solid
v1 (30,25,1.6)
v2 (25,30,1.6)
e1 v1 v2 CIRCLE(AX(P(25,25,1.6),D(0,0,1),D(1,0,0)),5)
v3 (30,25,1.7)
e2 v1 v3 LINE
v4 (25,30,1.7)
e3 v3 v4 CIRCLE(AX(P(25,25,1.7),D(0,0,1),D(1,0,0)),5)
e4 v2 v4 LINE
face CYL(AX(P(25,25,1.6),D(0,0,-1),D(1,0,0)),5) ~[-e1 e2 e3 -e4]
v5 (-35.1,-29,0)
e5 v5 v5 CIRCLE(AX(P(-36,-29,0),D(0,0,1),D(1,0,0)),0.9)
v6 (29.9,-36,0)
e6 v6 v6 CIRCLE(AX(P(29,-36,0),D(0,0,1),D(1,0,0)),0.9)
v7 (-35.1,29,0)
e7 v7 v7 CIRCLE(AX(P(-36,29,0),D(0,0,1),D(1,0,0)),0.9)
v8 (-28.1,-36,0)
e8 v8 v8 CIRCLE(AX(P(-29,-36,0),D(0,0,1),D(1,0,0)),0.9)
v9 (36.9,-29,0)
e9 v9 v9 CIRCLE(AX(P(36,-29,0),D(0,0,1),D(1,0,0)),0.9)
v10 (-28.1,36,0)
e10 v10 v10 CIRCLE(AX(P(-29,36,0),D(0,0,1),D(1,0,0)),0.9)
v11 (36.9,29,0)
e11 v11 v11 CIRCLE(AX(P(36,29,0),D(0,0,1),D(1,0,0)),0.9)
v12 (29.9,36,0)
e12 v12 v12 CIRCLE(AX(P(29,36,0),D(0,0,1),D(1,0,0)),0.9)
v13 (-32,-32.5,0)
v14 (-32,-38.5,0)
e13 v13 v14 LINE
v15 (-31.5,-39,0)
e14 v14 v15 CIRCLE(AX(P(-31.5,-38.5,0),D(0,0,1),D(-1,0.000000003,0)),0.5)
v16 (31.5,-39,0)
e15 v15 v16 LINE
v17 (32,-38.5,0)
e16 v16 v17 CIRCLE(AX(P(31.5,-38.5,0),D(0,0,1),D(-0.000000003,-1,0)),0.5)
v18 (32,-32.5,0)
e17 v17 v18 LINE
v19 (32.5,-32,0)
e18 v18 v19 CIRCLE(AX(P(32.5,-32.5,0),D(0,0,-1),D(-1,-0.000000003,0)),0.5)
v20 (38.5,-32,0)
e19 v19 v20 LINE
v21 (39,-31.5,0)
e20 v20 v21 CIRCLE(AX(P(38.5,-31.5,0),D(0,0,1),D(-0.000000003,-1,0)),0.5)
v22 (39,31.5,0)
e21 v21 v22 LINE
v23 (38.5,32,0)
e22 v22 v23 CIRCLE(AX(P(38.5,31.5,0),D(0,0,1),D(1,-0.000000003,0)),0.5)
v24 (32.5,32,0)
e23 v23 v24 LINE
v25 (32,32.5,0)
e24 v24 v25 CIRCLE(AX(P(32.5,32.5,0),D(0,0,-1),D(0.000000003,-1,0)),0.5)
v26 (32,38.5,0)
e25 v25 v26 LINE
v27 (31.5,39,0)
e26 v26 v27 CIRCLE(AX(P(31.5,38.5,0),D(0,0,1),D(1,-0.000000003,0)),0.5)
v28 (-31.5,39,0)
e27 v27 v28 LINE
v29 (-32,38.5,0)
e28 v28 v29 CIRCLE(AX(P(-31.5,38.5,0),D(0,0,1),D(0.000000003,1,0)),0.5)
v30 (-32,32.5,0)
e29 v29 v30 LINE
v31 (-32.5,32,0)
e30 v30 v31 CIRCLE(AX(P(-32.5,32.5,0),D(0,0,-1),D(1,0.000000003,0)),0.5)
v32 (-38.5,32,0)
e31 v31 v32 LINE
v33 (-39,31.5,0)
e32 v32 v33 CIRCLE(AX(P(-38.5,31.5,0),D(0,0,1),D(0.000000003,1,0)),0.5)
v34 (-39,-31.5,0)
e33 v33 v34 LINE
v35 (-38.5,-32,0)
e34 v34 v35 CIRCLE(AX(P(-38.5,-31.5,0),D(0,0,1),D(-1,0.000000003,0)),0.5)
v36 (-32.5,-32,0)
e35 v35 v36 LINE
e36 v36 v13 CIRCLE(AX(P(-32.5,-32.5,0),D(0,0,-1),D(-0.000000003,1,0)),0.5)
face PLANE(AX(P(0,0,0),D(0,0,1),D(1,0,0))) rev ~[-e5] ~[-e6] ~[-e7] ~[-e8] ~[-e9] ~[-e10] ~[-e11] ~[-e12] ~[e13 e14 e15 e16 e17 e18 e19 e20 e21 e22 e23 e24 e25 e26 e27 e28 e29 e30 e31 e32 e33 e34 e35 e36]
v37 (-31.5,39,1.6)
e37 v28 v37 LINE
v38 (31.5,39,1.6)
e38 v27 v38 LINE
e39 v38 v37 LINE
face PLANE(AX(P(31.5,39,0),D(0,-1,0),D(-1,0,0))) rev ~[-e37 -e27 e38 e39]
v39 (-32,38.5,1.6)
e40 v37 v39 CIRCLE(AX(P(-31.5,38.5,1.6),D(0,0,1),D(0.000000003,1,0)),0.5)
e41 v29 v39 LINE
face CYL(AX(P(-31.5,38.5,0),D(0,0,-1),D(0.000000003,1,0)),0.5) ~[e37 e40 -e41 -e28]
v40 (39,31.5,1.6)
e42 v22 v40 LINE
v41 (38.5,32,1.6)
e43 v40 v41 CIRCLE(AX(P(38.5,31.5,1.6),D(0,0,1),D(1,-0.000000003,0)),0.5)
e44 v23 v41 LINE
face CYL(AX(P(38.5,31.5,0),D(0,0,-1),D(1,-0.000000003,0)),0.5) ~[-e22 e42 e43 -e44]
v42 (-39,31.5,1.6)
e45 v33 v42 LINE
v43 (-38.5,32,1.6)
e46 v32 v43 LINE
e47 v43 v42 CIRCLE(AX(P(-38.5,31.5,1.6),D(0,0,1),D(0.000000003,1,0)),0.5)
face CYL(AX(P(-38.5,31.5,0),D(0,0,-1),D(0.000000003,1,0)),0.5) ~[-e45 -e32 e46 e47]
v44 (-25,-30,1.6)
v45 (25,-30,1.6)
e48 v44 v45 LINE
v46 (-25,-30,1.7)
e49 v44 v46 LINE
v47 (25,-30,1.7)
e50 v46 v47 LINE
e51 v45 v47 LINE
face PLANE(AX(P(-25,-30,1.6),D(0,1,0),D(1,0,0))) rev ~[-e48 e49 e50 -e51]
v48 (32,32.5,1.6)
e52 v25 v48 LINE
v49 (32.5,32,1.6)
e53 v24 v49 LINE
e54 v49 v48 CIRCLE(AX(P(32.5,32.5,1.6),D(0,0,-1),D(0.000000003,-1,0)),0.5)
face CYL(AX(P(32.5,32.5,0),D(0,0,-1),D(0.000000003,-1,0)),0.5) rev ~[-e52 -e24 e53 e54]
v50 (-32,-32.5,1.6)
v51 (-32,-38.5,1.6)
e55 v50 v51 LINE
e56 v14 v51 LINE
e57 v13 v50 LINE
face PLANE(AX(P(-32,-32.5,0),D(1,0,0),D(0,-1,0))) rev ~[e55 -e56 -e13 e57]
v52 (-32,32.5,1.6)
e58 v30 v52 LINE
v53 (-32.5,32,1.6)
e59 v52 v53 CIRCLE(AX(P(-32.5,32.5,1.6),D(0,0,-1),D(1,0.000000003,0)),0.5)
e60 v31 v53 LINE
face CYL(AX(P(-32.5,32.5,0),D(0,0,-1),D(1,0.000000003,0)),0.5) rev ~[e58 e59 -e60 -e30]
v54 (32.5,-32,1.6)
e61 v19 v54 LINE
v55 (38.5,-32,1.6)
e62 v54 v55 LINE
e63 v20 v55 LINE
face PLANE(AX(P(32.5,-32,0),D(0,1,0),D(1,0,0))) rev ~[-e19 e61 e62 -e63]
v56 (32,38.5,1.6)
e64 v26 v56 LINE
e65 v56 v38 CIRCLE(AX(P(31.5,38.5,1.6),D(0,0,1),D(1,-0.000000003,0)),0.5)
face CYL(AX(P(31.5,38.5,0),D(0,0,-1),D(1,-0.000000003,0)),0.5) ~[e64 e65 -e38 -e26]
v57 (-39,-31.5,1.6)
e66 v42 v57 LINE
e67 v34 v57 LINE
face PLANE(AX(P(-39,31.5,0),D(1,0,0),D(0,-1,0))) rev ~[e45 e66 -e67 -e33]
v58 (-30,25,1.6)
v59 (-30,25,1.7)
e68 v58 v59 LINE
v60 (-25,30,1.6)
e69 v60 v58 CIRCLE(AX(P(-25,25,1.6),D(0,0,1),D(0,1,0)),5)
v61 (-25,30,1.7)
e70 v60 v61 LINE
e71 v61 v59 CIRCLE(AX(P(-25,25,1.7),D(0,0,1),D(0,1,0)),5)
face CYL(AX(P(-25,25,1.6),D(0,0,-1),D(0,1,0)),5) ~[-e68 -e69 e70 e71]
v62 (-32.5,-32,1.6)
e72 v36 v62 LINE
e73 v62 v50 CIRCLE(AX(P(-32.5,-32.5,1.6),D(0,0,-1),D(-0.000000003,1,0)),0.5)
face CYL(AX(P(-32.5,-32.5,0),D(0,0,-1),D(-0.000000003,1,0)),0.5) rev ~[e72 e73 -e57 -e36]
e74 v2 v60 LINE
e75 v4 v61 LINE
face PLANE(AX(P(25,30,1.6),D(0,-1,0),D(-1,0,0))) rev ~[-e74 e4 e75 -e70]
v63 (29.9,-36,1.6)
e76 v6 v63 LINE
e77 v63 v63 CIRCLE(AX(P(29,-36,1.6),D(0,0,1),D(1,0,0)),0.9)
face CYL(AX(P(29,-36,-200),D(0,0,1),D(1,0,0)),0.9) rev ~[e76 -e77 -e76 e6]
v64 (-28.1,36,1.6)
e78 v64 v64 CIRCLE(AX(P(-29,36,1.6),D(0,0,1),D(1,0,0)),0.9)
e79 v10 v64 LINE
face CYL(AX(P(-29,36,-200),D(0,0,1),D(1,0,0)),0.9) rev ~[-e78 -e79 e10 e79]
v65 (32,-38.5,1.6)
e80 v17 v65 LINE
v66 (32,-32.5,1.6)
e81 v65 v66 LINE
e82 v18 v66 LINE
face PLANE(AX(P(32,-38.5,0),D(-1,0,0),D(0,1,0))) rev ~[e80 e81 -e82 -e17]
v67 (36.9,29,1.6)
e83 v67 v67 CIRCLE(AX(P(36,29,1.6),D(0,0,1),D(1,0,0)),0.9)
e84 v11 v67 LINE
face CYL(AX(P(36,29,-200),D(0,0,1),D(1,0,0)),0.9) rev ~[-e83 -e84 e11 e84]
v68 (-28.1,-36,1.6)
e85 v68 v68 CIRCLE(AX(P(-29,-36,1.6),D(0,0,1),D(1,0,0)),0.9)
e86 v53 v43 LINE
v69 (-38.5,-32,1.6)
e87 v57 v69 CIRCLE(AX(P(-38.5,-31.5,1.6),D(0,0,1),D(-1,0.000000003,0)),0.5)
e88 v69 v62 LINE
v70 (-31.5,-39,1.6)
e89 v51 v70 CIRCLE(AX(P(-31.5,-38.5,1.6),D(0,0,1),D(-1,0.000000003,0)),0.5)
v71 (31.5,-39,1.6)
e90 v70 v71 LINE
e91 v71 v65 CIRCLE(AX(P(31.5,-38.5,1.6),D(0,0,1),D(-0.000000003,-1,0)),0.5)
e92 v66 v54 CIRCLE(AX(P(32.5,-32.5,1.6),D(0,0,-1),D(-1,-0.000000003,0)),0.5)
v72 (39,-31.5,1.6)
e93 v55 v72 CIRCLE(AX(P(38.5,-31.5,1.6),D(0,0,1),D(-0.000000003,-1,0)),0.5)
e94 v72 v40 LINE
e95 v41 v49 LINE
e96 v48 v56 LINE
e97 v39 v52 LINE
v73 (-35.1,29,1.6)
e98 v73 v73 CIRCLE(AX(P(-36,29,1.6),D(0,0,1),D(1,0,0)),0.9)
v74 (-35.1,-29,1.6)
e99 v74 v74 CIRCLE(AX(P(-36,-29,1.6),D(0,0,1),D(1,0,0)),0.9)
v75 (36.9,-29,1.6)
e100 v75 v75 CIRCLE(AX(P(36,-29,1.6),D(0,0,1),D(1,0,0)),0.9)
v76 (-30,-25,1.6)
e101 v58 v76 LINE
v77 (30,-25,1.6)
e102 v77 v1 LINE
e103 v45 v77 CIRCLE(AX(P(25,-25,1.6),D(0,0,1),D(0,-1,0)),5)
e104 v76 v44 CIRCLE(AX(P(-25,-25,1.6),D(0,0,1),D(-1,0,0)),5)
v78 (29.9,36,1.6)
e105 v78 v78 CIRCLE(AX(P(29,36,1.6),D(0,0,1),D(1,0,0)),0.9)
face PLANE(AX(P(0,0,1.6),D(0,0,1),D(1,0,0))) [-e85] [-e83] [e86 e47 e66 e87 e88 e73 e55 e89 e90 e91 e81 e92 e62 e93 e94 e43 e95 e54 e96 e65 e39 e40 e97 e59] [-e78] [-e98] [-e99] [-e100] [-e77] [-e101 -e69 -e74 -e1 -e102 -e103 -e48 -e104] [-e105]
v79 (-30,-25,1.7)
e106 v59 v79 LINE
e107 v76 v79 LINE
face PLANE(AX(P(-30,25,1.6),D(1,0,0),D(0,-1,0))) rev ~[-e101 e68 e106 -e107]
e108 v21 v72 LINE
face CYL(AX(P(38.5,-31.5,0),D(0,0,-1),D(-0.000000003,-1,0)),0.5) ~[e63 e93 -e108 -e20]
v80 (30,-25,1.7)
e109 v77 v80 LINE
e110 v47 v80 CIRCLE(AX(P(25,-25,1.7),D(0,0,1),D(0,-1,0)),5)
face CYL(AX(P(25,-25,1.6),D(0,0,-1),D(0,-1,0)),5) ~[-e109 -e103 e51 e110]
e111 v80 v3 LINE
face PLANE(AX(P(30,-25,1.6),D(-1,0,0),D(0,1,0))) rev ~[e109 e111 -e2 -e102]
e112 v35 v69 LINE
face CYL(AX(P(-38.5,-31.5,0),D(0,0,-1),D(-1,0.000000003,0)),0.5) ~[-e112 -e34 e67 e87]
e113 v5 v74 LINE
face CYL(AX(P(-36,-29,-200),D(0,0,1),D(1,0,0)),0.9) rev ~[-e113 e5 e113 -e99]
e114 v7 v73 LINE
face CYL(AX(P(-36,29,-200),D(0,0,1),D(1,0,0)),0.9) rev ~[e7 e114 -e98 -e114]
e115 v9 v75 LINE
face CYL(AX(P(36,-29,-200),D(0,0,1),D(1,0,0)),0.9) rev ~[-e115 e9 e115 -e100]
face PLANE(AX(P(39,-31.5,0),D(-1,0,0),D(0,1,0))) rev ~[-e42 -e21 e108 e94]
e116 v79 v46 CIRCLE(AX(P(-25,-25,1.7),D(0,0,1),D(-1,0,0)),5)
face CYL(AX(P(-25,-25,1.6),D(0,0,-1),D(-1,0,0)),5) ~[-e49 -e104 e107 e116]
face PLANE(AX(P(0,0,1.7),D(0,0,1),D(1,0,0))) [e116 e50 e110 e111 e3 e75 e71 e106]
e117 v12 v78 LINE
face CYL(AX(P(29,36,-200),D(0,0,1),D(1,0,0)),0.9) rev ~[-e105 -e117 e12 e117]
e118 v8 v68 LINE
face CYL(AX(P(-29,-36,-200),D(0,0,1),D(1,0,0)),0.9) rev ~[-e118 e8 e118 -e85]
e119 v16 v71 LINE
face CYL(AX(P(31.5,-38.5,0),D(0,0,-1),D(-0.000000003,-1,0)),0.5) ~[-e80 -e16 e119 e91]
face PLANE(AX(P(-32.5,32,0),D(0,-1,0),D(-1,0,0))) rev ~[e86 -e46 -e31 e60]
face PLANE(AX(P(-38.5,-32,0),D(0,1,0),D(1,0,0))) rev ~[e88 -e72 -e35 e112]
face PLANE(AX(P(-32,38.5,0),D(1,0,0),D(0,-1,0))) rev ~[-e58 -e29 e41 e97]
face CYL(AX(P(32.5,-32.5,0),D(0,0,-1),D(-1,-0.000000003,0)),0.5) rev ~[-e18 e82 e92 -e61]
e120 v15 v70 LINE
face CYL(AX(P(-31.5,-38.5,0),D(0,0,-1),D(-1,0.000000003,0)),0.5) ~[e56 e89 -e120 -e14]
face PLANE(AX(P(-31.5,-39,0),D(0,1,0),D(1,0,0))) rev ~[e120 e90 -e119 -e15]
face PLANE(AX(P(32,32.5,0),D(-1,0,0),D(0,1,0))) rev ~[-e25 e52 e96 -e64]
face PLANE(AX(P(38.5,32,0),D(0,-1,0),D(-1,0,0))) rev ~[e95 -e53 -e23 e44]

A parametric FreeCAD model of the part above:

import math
import FreeCAD as App
import Part
import Sketcher

doc = App.newDocument("Part")
params = doc.addObject("Spreadsheet::Sheet", "Params")
for row, (alias, value) in enumerate([
    ("sketch1_radius", "0.5 mm"),
    ("sketch1_width", "6 mm"),
    ("sketch1_width2", "63 mm"),
    ("pad1_length", "1.6 mm"),
    ("sketch2_radius", "5 mm"),
    ("sketch2_width", "50 mm"),
    ("pad2_length", "0.1 mm"),
    ("sketch3_diameter", "1.8 mm"),
    ("hole_diameter", "1.8 mm"),
    ("hole_depth", "200 mm"),
], start=1):
    params.set(f"A{row}", alias)
    params.set(f"B{row}", "=" + value)
    params.setAlias(f"B{row}", alias)

body = doc.addObject("PartDesign::Body", "Body")

# Sketch on XY plane
sketch1 = body.newObject("Sketcher::SketchObject", "Sketch")
sketch1.AttachmentSupport = (doc.getObject("XY_Plane"), [""])
sketch1.MapMode = "FlatFace"
sketch1.addGeometry([
    Part.LineSegment(App.Vector(-32, 38.5, 0), App.Vector(-32, 32.5, 0)),  # 0
    Part.ArcOfCircle(Part.Circle(App.Vector(-32.5, 32.5, 0), App.Vector(0, 0, 1), 0.5), math.radians(-90), math.radians(0)),  # 1
    Part.LineSegment(App.Vector(-32.5, 32, 0), App.Vector(-38.5, 32, 0)),  # 2
    Part.ArcOfCircle(Part.Circle(App.Vector(-38.5, 31.5, 0), App.Vector(0, 0, 1), 0.5), math.radians(90), math.radians(180)),  # 3
    Part.LineSegment(App.Vector(-39, 31.5, 0), App.Vector(-39, -31.5, 0)),  # 4
    Part.ArcOfCircle(Part.Circle(App.Vector(-38.5, -31.5, 0), App.Vector(0, 0, 1), 0.5), math.radians(180), math.radians(270)),  # 5
    Part.LineSegment(App.Vector(-38.5, -32, 0), App.Vector(-32.5, -32, 0)),  # 6
    Part.ArcOfCircle(Part.Circle(App.Vector(-32.5, -32.5, 0), App.Vector(0, 0, 1), 0.5), math.radians(0), math.radians(90)),  # 7
    Part.LineSegment(App.Vector(-32, -32.5, 0), App.Vector(-32, -38.5, 0)),  # 8
    Part.ArcOfCircle(Part.Circle(App.Vector(-31.5, -38.5, 0), App.Vector(0, 0, 1), 0.5), math.radians(180), math.radians(270)),  # 9
    Part.LineSegment(App.Vector(-31.5, -39, 0), App.Vector(31.5, -39, 0)),  # 10
    Part.ArcOfCircle(Part.Circle(App.Vector(31.5, -38.5, 0), App.Vector(0, 0, 1), 0.5), math.radians(-90), math.radians(0)),  # 11
    Part.LineSegment(App.Vector(32, -38.5, 0), App.Vector(32, -32.5, 0)),  # 12
    Part.ArcOfCircle(Part.Circle(App.Vector(32.5, -32.5, 0), App.Vector(0, 0, 1), 0.5), math.radians(90), math.radians(180)),  # 13
    Part.LineSegment(App.Vector(32.5, -32, 0), App.Vector(38.5, -32, 0)),  # 14
    Part.ArcOfCircle(Part.Circle(App.Vector(38.5, -31.5, 0), App.Vector(0, 0, 1), 0.5), math.radians(-90), math.radians(0)),  # 15
    Part.LineSegment(App.Vector(39, -31.5, 0), App.Vector(39, 31.5, 0)),  # 16
    Part.ArcOfCircle(Part.Circle(App.Vector(38.5, 31.5, 0), App.Vector(0, 0, 1), 0.5), math.radians(0), math.radians(90)),  # 17
    Part.LineSegment(App.Vector(38.5, 32, 0), App.Vector(32.5, 32, 0)),  # 18
    Part.ArcOfCircle(Part.Circle(App.Vector(32.5, 32.5, 0), App.Vector(0, 0, 1), 0.5), math.radians(180), math.radians(270)),  # 19
    Part.LineSegment(App.Vector(32, 32.5, 0), App.Vector(32, 38.5, 0)),  # 20
    Part.ArcOfCircle(Part.Circle(App.Vector(31.5, 38.5, 0), App.Vector(0, 0, 1), 0.5), math.radians(0), math.radians(90)),  # 21
    Part.LineSegment(App.Vector(31.5, 39, 0), App.Vector(-31.5, 39, 0)),  # 22
    Part.ArcOfCircle(Part.Circle(App.Vector(-31.5, 38.5, 0), App.Vector(0, 0, 1), 0.5), math.radians(90), math.radians(180)),  # 23
], False)
sketch1.addConstraint([
    Sketcher.Constraint("Tangent", 0, 2, 1, 2),
    Sketcher.Constraint("Tangent", 1, 1, 2, 1),
    Sketcher.Constraint("Tangent", 2, 2, 3, 1),
    Sketcher.Constraint("Tangent", 3, 2, 4, 1),
    Sketcher.Constraint("Tangent", 4, 2, 5, 1),
    Sketcher.Constraint("Tangent", 5, 2, 6, 1),
    Sketcher.Constraint("Tangent", 6, 2, 7, 2),
    Sketcher.Constraint("Tangent", 7, 1, 8, 1),
    Sketcher.Constraint("Tangent", 8, 2, 9, 1),
    Sketcher.Constraint("Tangent", 9, 2, 10, 1),
    Sketcher.Constraint("Tangent", 10, 2, 11, 1),
    Sketcher.Constraint("Tangent", 11, 2, 12, 1),
    Sketcher.Constraint("Tangent", 12, 2, 13, 2),
    Sketcher.Constraint("Tangent", 13, 1, 14, 1),
    Sketcher.Constraint("Tangent", 14, 2, 15, 1),
    Sketcher.Constraint("Tangent", 15, 2, 16, 1),
    Sketcher.Constraint("Tangent", 16, 2, 17, 1),
    Sketcher.Constraint("Tangent", 17, 2, 18, 1),
    Sketcher.Constraint("Tangent", 18, 2, 19, 2),
    Sketcher.Constraint("Tangent", 19, 1, 20, 1),
    Sketcher.Constraint("Tangent", 20, 2, 21, 1),
    Sketcher.Constraint("Tangent", 21, 2, 22, 1),
    Sketcher.Constraint("Tangent", 22, 2, 23, 1),
    Sketcher.Constraint("Tangent", 23, 2, 0, 1),
    Sketcher.Constraint("Vertical", 0),
    Sketcher.Constraint("Horizontal", 2),
    Sketcher.Constraint("Vertical", 4),
    Sketcher.Constraint("Horizontal", 6),
    Sketcher.Constraint("Vertical", 8),
    Sketcher.Constraint("Horizontal", 10),
    Sketcher.Constraint("Vertical", 12),
    Sketcher.Constraint("Horizontal", 14),
    Sketcher.Constraint("Vertical", 16),
    Sketcher.Constraint("Horizontal", 18),
    Sketcher.Constraint("Vertical", 20),
    Sketcher.Constraint("Horizontal", 22),
    Sketcher.Constraint("Equal", 1, 3),
    Sketcher.Constraint("Equal", 3, 5),
    Sketcher.Constraint("Equal", 5, 7),
    Sketcher.Constraint("Equal", 7, 9),
    Sketcher.Constraint("Equal", 9, 11),
    Sketcher.Constraint("Equal", 11, 13),
    Sketcher.Constraint("Equal", 13, 15),
    Sketcher.Constraint("Equal", 15, 17),
    Sketcher.Constraint("Equal", 17, 19),
    Sketcher.Constraint("Equal", 19, 21),
    Sketcher.Constraint("Equal", 21, 23),
    Sketcher.Constraint("Symmetric", 1, 3, 13, 3, -1, 1),
    Sketcher.Constraint("Symmetric", 5, 3, 17, 3, -1, 1),
    Sketcher.Constraint("Symmetric", 9, 3, 21, 3, -1, 1),
    Sketcher.Constraint("Symmetric", 7, 3, 13, 3, -2),
    Sketcher.Constraint("Equal", 18, 0),
    Sketcher.Constraint("Equal", 22, 4),
    Sketcher.Constraint("Radius", 1, 0.5),
    Sketcher.Constraint("DistanceX", 2, 2, 2, 1, 6.0),
    Sketcher.Constraint("DistanceX", 10, 1, 10, 2, 63.0),
])
sketch1.setExpression("Constraints[53]", "Params.sketch1_radius")
sketch1.setExpression("Constraints[54]", "Params.sketch1_width")
sketch1.setExpression("Constraints[55]", "Params.sketch1_width2")
pad1 = body.newObject("PartDesign::Pad", "Pad")
pad1.Profile = sketch1
pad1.setExpression("Length", "Params.pad1_length")

# Sketch on XY plane
sketch2 = body.newObject("Sketcher::SketchObject", "Sketch001")
sketch2.AttachmentSupport = (doc.getObject("XY_Plane"), [""])
sketch2.MapMode = "FlatFace"
sketch2.AttachmentOffset = App.Placement(App.Vector(0, 0, 1.6), App.Rotation())
sketch2.addGeometry([
    Part.LineSegment(App.Vector(-25, -30, 0), App.Vector(25, -30, 0)),  # 0
    Part.ArcOfCircle(Part.Circle(App.Vector(25, -25, 0), App.Vector(0, 0, 1), 5), math.radians(-90), math.radians(0)),  # 1
    Part.LineSegment(App.Vector(30, -25, 0), App.Vector(30, 25, 0)),  # 2
    Part.ArcOfCircle(Part.Circle(App.Vector(25, 25, 0), App.Vector(0, 0, 1), 5), math.radians(0), math.radians(90)),  # 3
    Part.LineSegment(App.Vector(25, 30, 0), App.Vector(-25, 30, 0)),  # 4
    Part.ArcOfCircle(Part.Circle(App.Vector(-25, 25, 0), App.Vector(0, 0, 1), 5), math.radians(90), math.radians(180)),  # 5
    Part.LineSegment(App.Vector(-30, 25, 0), App.Vector(-30, -25, 0)),  # 6
    Part.ArcOfCircle(Part.Circle(App.Vector(-25, -25, 0), App.Vector(0, 0, 1), 5), math.radians(180), math.radians(270)),  # 7
], False)
sketch2.addConstraint([
    Sketcher.Constraint("Tangent", 0, 2, 1, 1),
    Sketcher.Constraint("Tangent", 1, 2, 2, 1),
    Sketcher.Constraint("Tangent", 2, 2, 3, 1),
    Sketcher.Constraint("Tangent", 3, 2, 4, 1),
    Sketcher.Constraint("Tangent", 4, 2, 5, 1),
    Sketcher.Constraint("Tangent", 5, 2, 6, 1),
    Sketcher.Constraint("Tangent", 6, 2, 7, 1),
    Sketcher.Constraint("Tangent", 7, 2, 0, 1),
    Sketcher.Constraint("Horizontal", 0),
    Sketcher.Constraint("Vertical", 2),
    Sketcher.Constraint("Horizontal", 4),
    Sketcher.Constraint("Vertical", 6),
    Sketcher.Constraint("Equal", 1, 3),
    Sketcher.Constraint("Equal", 3, 5),
    Sketcher.Constraint("Equal", 5, 7),
    Sketcher.Constraint("Symmetric", 1, 3, 5, 3, -1, 1),
    Sketcher.Constraint("Equal", 4, 2),
    Sketcher.Constraint("Radius", 1, 5.0),
    Sketcher.Constraint("DistanceX", 0, 1, 0, 2, 50.0),
])
sketch2.setExpression("Constraints[17]", "Params.sketch2_radius")
sketch2.setExpression("Constraints[18]", "Params.sketch2_width")
pad2 = body.newObject("PartDesign::Pad", "Pad001")
pad2.Profile = sketch2
pad2.setExpression("Length", "Params.pad2_length")

# Sketch on XY plane
sketch3 = body.newObject("Sketcher::SketchObject", "Sketch002")
sketch3.AttachmentSupport = (doc.getObject("XY_Plane"), [""])
sketch3.MapMode = "FlatFace"
sketch3.addGeometry([
    Part.Circle(App.Vector(29, 36, 0), App.Vector(0, 0, 1), 0.9),  # 0
    Part.Circle(App.Vector(-29, 36, 0), App.Vector(0, 0, 1), 0.9),  # 1
    Part.Circle(App.Vector(29, -36, 0), App.Vector(0, 0, 1), 0.9),  # 2
    Part.Circle(App.Vector(-29, -36, 0), App.Vector(0, 0, 1), 0.9),  # 3
    Part.Circle(App.Vector(-36, 29, 0), App.Vector(0, 0, 1), 0.9),  # 4
    Part.Circle(App.Vector(-36, -29, 0), App.Vector(0, 0, 1), 0.9),  # 5
    Part.Circle(App.Vector(36, -29, 0), App.Vector(0, 0, 1), 0.9),  # 6
    Part.Circle(App.Vector(36, 29, 0), App.Vector(0, 0, 1), 0.9),  # 7
], False)
sketch3.addConstraint([
    Sketcher.Constraint("Equal", 0, 1),
    Sketcher.Constraint("Equal", 1, 2),
    Sketcher.Constraint("Equal", 2, 3),
    Sketcher.Constraint("Equal", 3, 4),
    Sketcher.Constraint("Equal", 4, 5),
    Sketcher.Constraint("Equal", 5, 6),
    Sketcher.Constraint("Equal", 6, 7),
    Sketcher.Constraint("Symmetric", 1, 3, 2, 3, -1, 1),
    Sketcher.Constraint("Symmetric", 0, 3, 3, 3, -1, 1),
    Sketcher.Constraint("Symmetric", 4, 3, 6, 3, -1, 1),
    Sketcher.Constraint("Symmetric", 5, 3, 7, 3, -1, 1),
    Sketcher.Constraint("Symmetric", 0, 3, 1, 3, -2),
    Sketcher.Constraint("Symmetric", 5, 3, 6, 3, -2),
    Sketcher.Constraint("Diameter", 0, 1.8),
    Sketcher.Constraint("DistanceX", -1, 1, 0, 3, 29.0),
    Sketcher.Constraint("DistanceY", -1, 1, 0, 3, 36.0),
    Sketcher.Constraint("DistanceX", 4, 3, -1, 1, 36.0),
    Sketcher.Constraint("DistanceY", -1, 1, 4, 3, 29.0),
])
sketch3.setExpression("Constraints[13]", "Params.sketch3_diameter")
doc.recompute()
hole = body.newObject("PartDesign::Hole", "Hole")
hole.Profile = sketch3
hole.ThreadType = "None"
hole.setExpression("Diameter", "Params.hole_diameter")
hole.DepthType = "Dimension"
hole.setExpression("Depth", "Params.hole_depth")
hole.DrillPoint = "Angled"
hole.DrillPointAngle = 118
hole.Reversed = True

doc.recompute()
